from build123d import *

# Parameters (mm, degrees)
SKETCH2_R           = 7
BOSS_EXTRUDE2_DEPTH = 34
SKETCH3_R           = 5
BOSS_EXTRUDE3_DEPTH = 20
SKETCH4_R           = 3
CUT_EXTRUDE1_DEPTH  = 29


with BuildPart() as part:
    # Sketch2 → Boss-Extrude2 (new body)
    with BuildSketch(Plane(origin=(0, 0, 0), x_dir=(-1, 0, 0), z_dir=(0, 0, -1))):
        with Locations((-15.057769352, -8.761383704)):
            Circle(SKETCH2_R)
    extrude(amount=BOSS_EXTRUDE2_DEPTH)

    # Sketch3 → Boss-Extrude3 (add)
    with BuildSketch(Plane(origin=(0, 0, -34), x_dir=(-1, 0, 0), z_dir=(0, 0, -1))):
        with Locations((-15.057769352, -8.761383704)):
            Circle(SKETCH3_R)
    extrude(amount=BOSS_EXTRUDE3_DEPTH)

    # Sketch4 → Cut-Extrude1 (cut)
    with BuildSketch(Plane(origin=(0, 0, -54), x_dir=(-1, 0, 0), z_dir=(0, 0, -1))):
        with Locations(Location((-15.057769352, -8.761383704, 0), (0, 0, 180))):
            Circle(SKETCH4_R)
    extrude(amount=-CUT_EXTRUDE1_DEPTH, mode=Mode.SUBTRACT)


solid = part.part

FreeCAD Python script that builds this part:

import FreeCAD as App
import Part
import Sketcher
Q = App.Units.Quantity

doc = App.newDocument("Part")
params = doc.addObject("Spreadsheet::Sheet", "Params")
for row, (alias, value) in enumerate([
    ("sketch1_diameter", "14 mm"),
    ("pad1_length", "34 mm"),
    ("sketch2_diameter", "10 mm"),
    ("pad2_length", "20 mm"),
    ("sketch3_diameter", "6 mm"),
    ("pocket1_length", "29 mm"),
], start=1):
    params.set(f"A{row}", alias)
    params.set(f"B{row}", "=" + value)
    params.setAlias(f"B{row}", alias)

body = doc.addObject("PartDesign::Body", "Body")

# Sketch on XY plane
sketch1 = body.newObject("Sketcher::SketchObject", "Sketch")
sketch1.AttachmentSupport = (doc.getObject("XY_Plane"), [""])
sketch1.MapMode = "FlatFace"
sketch1.addGeometry(Part.Circle(App.Vector(15.057769, -8.761384, 0), App.Vector(0, 0, 1), 7), False)
sketch1.addConstraint([
    Sketcher.Constraint("Diameter", 0, Q("14 mm")),
    Sketcher.Constraint("DistanceX", -1, 1, 0, 3, Q("15.057769 mm")),
    Sketcher.Constraint("DistanceY", 0, 3, -1, 1, Q("8.761384 mm")),
])
sketch1.setExpression("Constraints[0]", "Params.sketch1_diameter")
pad1 = body.newObject("PartDesign::Pad", "Pad")
pad1.Profile = sketch1
pad1.setExpression("Length", "Params.pad1_length")
pad1.Reversed = True

# Sketch on XY plane
sketch2 = body.newObject("Sketcher::SketchObject", "Sketch001")
sketch2.AttachmentSupport = (doc.getObject("XY_Plane"), [""])
sketch2.MapMode = "FlatFace"
sketch2.AttachmentOffset = App.Placement(App.Vector(0, 0, -34), App.Rotation())
sketch2.addGeometry(Part.Circle(App.Vector(15.057769, -8.761384, 0), App.Vector(0, 0, 1), 5), False)
sketch2.addConstraint([
    Sketcher.Constraint("Diameter", 0, Q("10 mm")),
    Sketcher.Constraint("DistanceX", -1, 1, 0, 3, Q("15.057769 mm")),
    Sketcher.Constraint("DistanceY", 0, 3, -1, 1, Q("8.761384 mm")),
])
sketch2.setExpression("Constraints[0]", "Params.sketch2_diameter")
pad2 = body.newObject("PartDesign::Pad", "Pad001")
pad2.Profile = sketch2
pad2.setExpression("Length", "Params.pad2_length")
pad2.Reversed = True

# Sketch on XY plane
sketch3 = body.newObject("Sketcher::SketchObject", "Sketch002")
sketch3.AttachmentSupport = (doc.getObject("XY_Plane"), [""])
sketch3.MapMode = "FlatFace"
sketch3.AttachmentOffset = App.Placement(App.Vector(0, 0, -54), App.Rotation())
sketch3.addGeometry(Part.Circle(App.Vector(15.057769, -8.761384, 0), App.Vector(0, 0, 1), 3), False)
sketch3.addConstraint([
    Sketcher.Constraint("Diameter", 0, Q("6 mm")),
    Sketcher.Constraint("DistanceX", -1, 1, 0, 3, Q("15.057769 mm")),
    Sketcher.Constraint("DistanceY", 0, 3, -1, 1, Q("8.761384 mm")),
])
sketch3.setExpression("Constraints[0]", "Params.sketch3_diameter")
pocket1 = body.newObject("PartDesign::Pocket", "Pocket")
pocket1.Profile = sketch3
pocket1.setExpression("Length", "Params.pocket1_length")
pocket1.Reversed = True

doc.recompute()
